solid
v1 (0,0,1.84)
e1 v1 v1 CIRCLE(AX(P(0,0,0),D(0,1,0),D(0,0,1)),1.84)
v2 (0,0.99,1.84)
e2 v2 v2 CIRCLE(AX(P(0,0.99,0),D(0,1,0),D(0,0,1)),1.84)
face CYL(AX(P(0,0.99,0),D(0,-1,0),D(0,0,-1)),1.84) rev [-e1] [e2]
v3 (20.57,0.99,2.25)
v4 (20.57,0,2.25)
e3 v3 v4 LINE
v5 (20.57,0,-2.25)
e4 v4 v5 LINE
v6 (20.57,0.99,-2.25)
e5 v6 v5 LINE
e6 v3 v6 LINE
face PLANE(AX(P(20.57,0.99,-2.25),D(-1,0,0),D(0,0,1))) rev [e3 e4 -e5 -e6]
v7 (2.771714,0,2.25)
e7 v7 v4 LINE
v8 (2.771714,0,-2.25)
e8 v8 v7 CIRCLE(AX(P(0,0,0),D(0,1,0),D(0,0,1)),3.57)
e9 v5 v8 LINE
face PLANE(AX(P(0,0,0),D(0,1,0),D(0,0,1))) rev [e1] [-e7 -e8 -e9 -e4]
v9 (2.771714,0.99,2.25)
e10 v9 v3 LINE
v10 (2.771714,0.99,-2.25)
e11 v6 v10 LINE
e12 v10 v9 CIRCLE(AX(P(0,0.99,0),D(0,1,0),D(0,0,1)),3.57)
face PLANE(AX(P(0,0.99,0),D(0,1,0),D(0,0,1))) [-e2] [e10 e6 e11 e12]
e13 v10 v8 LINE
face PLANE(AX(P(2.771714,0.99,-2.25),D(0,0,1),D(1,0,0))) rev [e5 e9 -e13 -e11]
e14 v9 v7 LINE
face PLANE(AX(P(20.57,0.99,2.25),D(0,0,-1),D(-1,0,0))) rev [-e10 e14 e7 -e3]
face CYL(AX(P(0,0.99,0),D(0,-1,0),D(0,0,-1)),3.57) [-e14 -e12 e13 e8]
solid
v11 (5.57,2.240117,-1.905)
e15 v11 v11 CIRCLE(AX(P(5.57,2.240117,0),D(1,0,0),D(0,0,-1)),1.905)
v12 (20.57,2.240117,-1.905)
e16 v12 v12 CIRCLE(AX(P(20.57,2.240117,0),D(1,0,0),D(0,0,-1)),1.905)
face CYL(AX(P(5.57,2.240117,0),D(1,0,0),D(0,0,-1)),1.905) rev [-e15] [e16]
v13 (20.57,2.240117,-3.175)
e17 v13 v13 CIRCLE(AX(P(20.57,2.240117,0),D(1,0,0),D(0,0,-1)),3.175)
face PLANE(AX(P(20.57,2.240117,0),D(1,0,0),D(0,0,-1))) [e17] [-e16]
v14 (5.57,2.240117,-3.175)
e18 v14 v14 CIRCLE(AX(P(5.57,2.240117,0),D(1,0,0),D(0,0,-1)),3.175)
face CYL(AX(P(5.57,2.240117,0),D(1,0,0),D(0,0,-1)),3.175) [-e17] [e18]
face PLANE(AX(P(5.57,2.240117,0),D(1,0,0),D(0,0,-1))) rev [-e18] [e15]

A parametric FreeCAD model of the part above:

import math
import FreeCAD as App
import Part
import Sketcher

V = App.Vector
Q = App.Units.Quantity

doc = App.newDocument("Part")
params = doc.addObject("Spreadsheet::Sheet", "Params")
for row, (alias, value) in enumerate([
    ("sketch1_diameter", "3.68 mm"),
    ("sketch1_radius", "3.57 mm"),
    ("sketch1_height", "4.5 mm"),
    ("pad1_length", "0.99 mm"),
    ("sketch2_diameter", "6.35 mm"),
    ("sketch2_diameter2", "3.81 mm"),
    ("pad2_length", "15 mm"),
], start=1):
    params.set(f"A{row}", alias)
    params.set(f"B{row}", "=" + value)
    params.setAlias(f"B{row}", alias)

body = doc.addObject("PartDesign::Body", "Body")

sketch1 = body.newObject("Sketcher::SketchObject", "Sketch")
sketch1.AttachmentSupport = (doc.getObject("XZ_Plane"), [""])
sketch1.MapMode = "FlatFace"
sketch1.addGeometry([
    Part.LineSegment(V(20.57, -2.25, 0), V(2.771714, -2.25, 0)),
    Part.ArcOfCircle(Part.Circle(V(0, 0, 0), V(0, 0, 1), 3.57), math.radians(39.068725), math.radians(320.931275)),
    Part.LineSegment(V(2.771714, 2.25, 0), V(20.57, 2.25, 0)),
    Part.LineSegment(V(20.57, 2.25, 0), V(20.57, -2.25, 0)),
    Part.Circle(V(0, 0, 0), V(0, 0, 1), 1.84),
], False)
sketch1.addConstraint([
    Sketcher.Constraint("Coincident", 0, 2, 1, 2),
    Sketcher.Constraint("Coincident", 1, 1, 2, 1),
    Sketcher.Constraint("Coincident", 2, 2, 3, 1),
    Sketcher.Constraint("Coincident", 3, 2, 0, 1),
    Sketcher.Constraint("Horizontal", 0),
    Sketcher.Constraint("Horizontal", 2),
    Sketcher.Constraint("Vertical", 3),
    Sketcher.Constraint("Coincident", 1, 3, -1, 1),
    Sketcher.Constraint("Coincident", 4, 3, -1, 1),
    Sketcher.Constraint("Vertical", 0, 2, 1, 1),
    Sketcher.Constraint("Diameter", 4, Q("3.68 mm")),
    Sketcher.Constraint("Radius", 1, Q("3.57 mm")),
    Sketcher.Constraint("DistanceY", 3, 2, 3, 1, Q("4.5 mm")),
    Sketcher.Constraint("DistanceX", -1, 1, 2, 2, Q("20.57 mm")),
])
sketch1.setExpression("Constraints[10]", "Params.sketch1_diameter")
sketch1.setExpression("Constraints[11]", "Params.sketch1_radius")
sketch1.setExpression("Constraints[12]", "Params.sketch1_height")
pad1 = body.newObject("PartDesign::Pad", "Pad")
pad1.Profile = sketch1
pad1.setExpression("Length", "Params.pad1_length")
pad1.Reversed = True
body2 = doc.addObject("PartDesign::Body", "Body001")

sketch2 = body2.newObject("Sketcher::SketchObject", "Sketch001")
sketch2.AttachmentSupport = (doc.getObject("YZ_Plane001"), [""])
sketch2.MapMode = "FlatFace"
sketch2.AttachmentOffset = App.Placement(V(0, 0, 20.57), App.Rotation())
sketch2.addGeometry([
    Part.Circle(V(2.240117, 0, 0), V(0, 0, 1), 3.175),
    Part.Circle(V(2.240117, 0, 0), V(0, 0, 1), 1.905),
], False)
sketch2.addConstraint([
    Sketcher.Constraint("Coincident", 1, 3, 0, 3),
    Sketcher.Constraint("PointOnObject", 0, 3, -1),
    Sketcher.Constraint("Diameter", 0, Q("6.35 mm")),
    Sketcher.Constraint("Diameter", 1, Q("3.81 mm")),
    Sketcher.Constraint("DistanceX", -1, 1, 0, 3, Q("2.240117 mm")),
])
sketch2.setExpression("Constraints[2]", "Params.sketch2_diameter")
sketch2.setExpression("Constraints[3]", "Params.sketch2_diameter2")
pad2 = body2.newObject("PartDesign::Pad", "Pad001")
pad2.Profile = sketch2
pad2.setExpression("Length", "Params.pad2_length")
pad2.Reversed = True

doc.recompute()
